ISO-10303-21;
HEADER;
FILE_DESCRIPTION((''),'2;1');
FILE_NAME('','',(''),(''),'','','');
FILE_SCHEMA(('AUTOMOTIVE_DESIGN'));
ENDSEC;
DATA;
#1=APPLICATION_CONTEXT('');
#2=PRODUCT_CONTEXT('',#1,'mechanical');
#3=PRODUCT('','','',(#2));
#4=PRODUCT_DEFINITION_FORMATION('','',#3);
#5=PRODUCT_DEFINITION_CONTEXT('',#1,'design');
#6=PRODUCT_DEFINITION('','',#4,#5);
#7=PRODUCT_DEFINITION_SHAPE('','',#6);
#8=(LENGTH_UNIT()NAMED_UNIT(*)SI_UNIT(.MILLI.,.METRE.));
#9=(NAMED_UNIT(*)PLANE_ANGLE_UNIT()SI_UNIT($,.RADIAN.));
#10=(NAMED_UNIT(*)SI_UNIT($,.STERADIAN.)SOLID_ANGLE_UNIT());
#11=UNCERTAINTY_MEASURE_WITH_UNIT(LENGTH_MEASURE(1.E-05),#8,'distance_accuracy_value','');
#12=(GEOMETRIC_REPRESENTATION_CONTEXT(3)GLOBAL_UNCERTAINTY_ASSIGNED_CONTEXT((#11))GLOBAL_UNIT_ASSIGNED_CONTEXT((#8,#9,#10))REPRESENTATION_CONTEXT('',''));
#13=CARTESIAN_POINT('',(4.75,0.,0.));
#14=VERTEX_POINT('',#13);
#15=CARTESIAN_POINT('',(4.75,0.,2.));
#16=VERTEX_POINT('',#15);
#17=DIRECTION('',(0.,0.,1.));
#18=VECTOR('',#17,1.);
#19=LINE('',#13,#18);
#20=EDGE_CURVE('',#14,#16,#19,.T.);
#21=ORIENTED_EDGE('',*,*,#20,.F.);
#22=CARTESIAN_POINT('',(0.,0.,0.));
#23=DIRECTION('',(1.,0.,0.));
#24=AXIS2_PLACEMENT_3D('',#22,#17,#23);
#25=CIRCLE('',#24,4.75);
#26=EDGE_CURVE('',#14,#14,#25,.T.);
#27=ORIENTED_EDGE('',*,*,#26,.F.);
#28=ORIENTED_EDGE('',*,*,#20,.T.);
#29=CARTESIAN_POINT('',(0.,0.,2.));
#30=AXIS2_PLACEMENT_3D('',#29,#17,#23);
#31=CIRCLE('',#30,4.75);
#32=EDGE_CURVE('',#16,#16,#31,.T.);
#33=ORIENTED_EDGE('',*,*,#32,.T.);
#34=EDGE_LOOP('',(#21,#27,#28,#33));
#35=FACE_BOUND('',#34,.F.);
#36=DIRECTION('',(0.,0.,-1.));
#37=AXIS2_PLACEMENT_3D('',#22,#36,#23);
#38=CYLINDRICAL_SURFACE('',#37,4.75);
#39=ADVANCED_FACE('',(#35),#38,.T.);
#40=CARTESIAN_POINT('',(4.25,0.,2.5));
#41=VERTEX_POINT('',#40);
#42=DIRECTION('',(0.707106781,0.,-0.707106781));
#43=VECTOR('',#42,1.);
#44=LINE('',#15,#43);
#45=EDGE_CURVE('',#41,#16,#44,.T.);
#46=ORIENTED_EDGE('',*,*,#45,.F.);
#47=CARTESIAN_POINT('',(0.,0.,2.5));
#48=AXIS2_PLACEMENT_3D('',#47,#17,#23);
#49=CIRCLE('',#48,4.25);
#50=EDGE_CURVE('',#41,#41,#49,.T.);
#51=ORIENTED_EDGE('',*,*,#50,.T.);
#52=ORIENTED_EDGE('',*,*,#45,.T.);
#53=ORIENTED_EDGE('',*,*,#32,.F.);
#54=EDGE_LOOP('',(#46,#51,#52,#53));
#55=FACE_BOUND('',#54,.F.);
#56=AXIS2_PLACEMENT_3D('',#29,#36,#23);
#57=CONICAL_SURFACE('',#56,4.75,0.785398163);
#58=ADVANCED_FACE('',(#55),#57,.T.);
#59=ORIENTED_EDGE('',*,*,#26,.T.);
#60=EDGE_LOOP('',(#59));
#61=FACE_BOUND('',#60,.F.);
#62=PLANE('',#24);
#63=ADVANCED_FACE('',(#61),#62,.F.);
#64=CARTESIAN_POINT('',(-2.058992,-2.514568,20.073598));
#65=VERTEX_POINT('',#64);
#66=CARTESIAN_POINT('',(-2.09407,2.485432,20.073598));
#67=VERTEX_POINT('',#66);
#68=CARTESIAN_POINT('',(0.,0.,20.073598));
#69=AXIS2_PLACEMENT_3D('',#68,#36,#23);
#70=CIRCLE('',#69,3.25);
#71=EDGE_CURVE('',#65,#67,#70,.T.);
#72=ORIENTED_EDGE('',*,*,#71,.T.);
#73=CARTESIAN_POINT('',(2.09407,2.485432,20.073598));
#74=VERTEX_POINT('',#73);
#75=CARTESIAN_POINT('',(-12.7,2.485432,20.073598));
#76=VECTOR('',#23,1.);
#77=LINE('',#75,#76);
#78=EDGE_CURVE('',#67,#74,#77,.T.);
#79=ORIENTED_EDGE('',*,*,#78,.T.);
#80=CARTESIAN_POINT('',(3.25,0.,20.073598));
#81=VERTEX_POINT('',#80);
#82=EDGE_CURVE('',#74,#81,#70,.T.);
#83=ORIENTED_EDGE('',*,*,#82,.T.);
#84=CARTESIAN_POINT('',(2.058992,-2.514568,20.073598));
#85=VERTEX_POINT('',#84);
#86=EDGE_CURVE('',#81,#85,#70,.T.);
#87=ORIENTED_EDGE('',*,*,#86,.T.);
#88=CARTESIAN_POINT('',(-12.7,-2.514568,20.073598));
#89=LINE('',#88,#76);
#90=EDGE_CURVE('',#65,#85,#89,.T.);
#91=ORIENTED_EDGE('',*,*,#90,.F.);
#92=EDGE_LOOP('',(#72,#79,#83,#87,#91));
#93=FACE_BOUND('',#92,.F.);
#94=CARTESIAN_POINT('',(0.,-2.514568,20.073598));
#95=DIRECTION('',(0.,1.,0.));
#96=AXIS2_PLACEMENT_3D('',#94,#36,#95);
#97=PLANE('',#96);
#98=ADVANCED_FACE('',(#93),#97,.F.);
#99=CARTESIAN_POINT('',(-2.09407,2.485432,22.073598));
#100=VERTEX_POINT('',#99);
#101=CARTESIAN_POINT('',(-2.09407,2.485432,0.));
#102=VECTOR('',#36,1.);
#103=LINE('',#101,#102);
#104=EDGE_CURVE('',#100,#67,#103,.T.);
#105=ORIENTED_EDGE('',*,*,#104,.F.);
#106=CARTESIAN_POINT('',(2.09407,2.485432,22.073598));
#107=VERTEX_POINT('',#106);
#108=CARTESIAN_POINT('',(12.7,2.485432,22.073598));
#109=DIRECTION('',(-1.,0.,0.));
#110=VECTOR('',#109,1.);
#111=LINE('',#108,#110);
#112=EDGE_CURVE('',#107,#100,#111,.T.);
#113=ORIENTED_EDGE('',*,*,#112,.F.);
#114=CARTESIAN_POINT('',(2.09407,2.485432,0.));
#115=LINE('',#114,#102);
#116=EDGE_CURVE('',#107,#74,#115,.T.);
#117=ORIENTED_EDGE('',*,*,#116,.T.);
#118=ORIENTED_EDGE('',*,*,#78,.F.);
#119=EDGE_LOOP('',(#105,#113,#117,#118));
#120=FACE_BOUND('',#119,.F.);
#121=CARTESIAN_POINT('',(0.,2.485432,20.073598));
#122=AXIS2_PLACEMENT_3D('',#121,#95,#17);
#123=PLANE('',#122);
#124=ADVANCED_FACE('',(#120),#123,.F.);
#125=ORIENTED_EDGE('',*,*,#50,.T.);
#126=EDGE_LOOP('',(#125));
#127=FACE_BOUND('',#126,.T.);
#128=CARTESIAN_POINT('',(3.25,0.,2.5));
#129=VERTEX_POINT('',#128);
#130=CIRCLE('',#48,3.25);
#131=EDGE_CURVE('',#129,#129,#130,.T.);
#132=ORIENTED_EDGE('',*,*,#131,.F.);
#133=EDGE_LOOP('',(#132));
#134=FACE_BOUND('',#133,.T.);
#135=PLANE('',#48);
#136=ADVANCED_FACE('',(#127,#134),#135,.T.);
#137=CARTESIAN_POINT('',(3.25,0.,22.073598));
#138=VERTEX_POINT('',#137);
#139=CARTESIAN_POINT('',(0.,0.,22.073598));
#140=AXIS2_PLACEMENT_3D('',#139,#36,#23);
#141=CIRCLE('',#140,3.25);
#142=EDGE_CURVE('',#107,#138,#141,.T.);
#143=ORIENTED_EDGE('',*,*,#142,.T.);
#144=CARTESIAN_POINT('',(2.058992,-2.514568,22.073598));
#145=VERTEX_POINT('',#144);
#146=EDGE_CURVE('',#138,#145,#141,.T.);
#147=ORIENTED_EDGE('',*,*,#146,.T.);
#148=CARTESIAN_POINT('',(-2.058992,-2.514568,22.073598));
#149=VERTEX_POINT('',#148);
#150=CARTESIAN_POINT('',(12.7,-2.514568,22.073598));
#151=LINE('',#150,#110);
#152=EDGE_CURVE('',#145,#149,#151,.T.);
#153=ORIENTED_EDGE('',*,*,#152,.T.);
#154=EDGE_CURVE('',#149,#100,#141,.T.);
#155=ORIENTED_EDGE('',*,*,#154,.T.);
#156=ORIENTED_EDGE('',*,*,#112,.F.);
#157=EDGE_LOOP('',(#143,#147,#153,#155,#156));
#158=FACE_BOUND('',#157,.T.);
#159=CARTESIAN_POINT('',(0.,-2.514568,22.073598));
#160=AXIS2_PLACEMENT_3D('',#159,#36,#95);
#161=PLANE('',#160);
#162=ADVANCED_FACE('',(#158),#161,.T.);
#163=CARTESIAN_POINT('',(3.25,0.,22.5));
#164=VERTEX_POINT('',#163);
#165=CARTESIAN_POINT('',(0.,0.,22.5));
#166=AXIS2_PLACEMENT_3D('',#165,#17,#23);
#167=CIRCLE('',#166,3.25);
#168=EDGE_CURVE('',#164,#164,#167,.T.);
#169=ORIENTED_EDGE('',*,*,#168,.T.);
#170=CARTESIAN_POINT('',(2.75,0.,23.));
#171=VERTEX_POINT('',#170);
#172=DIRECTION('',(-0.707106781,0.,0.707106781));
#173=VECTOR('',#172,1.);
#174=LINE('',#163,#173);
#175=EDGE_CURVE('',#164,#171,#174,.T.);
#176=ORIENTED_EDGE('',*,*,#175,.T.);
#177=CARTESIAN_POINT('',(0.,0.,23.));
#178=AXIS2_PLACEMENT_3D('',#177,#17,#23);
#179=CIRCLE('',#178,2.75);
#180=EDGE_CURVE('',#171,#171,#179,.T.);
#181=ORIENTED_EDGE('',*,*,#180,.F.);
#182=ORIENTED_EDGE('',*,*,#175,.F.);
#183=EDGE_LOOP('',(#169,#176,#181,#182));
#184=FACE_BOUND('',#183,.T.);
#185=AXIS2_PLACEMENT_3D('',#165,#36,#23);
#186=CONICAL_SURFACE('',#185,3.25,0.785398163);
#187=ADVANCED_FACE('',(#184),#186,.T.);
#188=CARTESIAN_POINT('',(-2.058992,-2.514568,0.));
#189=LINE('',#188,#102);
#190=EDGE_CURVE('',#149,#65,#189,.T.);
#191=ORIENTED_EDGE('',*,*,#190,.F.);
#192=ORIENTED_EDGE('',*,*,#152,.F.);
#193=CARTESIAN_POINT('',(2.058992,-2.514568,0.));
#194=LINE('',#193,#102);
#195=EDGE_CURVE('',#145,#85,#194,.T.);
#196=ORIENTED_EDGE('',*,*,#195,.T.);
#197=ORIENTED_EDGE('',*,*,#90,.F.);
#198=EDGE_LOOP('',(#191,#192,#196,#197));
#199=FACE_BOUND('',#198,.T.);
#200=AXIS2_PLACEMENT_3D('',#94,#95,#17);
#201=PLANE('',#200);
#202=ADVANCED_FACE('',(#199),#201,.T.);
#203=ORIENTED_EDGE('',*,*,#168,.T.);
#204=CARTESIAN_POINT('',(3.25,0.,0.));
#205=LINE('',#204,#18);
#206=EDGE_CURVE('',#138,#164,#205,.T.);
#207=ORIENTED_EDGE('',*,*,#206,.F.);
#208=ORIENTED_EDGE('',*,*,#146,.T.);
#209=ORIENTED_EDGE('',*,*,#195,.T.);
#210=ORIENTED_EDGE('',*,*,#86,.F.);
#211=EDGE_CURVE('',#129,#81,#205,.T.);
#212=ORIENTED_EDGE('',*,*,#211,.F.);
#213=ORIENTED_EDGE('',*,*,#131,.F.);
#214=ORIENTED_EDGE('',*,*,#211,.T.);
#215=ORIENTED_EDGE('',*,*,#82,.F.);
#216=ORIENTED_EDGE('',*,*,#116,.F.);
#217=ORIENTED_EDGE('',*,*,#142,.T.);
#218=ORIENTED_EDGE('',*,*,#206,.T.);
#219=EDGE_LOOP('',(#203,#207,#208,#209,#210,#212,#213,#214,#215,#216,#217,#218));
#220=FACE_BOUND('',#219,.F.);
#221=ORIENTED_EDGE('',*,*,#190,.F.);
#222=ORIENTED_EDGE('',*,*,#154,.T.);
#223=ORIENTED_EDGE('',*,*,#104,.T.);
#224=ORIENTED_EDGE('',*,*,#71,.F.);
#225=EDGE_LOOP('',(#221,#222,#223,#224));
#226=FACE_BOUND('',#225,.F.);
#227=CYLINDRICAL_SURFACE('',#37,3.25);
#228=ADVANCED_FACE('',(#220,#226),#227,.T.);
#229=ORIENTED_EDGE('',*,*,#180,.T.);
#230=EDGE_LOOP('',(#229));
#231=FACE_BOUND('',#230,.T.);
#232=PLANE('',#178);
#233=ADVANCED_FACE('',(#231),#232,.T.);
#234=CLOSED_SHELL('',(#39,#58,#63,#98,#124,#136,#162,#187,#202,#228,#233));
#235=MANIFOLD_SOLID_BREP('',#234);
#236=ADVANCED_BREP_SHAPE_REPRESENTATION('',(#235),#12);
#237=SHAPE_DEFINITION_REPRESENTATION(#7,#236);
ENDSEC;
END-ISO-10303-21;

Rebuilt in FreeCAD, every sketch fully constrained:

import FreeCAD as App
import Part
import Sketcher

V = App.Vector
Q = App.Units.Quantity


def edges_at(feature, points):
    """Names of the edges that pass closest to the given points."""
    edges = feature.Shape.Edges
    near = lambda p: min(range(len(edges)), key=lambda i: edges[i].distToShape(Part.Vertex(*p))[0])
    return sorted({f"Edge{near(p) + 1}" for p in points})


def add_polygon(sketch, points):
    """Adds a closed chain of lines whose ends are joined by coincident constraints."""
    first, n = sketch.GeometryCount, len(points)
    for a, b in zip(points, points[1:] + points[:1]):
        sketch.addGeometry(Part.LineSegment(App.Vector(*a, 0), App.Vector(*b, 0)), False)
    for i in range(n):
        sketch.addConstraint(Sketcher.Constraint("Coincident", first + i, 2, first + (i + 1) % n, 1))

doc = App.newDocument("Part")
params = doc.addObject("Spreadsheet::Sheet", "Params")
for row, (alias, value) in enumerate([
    ("sketch1_diameter", "9.5 mm"),
    ("sketch1_diameter2", "6.5 mm"),
    ("pad1_length", "2.5 mm"),
    ("sketch2_diameter", "6.5 mm"),
    ("pad2_length", "23 mm"),
    ("sketch3_width", "5 mm"),
    ("sketch3_height", "2 mm"),
    ("pocket1_length", "25.4 mm"),
    ("chamfer_size", "0.5 mm"),
], start=1):
    params.set(f"A{row}", alias)
    params.set(f"B{row}", "=" + value)
    params.setAlias(f"B{row}", alias)

body = doc.addObject("PartDesign::Body", "Body")

# Sketch on XY plane
sketch1 = doc.addObject("Sketcher::SketchObject", "Sketch")
body.addObject(sketch1)
sketch1.AttachmentSupport = (doc.XY_Plane, [""])
sketch1.MapMode = "FlatFace"
sketch1.addGeometry([
    Part.Circle(V(0, 0, 0), V(0, 0, 1), 4.8),
    Part.Circle(V(0, 0, 0), V(0, 0, 1), 3.2),
], False)
sketch1.addConstraint([
    Sketcher.Constraint("Coincident", 0, 3, -1, 1),
    Sketcher.Constraint("Coincident", 1, 3, -1, 1),
    Sketcher.Constraint("Diameter", 0, Q("9.5 mm")),
    Sketcher.Constraint("Diameter", 1, Q("6.5 mm")),
])
sketch1.setExpression("Constraints[2]", "Params.sketch1_diameter")
sketch1.setExpression("Constraints[3]", "Params.sketch1_diameter2")
pad1 = doc.addObject("PartDesign::Pad", "Pad")
body.addObject(pad1)
pad1.Profile = sketch1
pad1.setExpression("Length", "Params.pad1_length")

# Sketch on XY plane
sketch2 = doc.addObject("Sketcher::SketchObject", "Sketch001")
body.addObject(sketch2)
sketch2.AttachmentSupport = (doc.XY_Plane, [""])
sketch2.MapMode = "FlatFace"
sketch2.addGeometry(Part.Circle(V(0, 0, 0), V(0, 0, 1), 3.2), False)
sketch2.addConstraint([
    Sketcher.Constraint("Coincident", 0, 3, -1, 1),
    Sketcher.Constraint("Diameter", 0, Q("6.5 mm")),
])
sketch2.setExpression("Constraints[1]", "Params.sketch2_diameter")
pad2 = doc.addObject("PartDesign::Pad", "Pad001")
body.addObject(pad2)
pad2.Profile = sketch2
pad2.setExpression("Length", "Params.pad2_length")

# Sketch on YZ plane
sketch3 = doc.addObject("Sketcher::SketchObject", "Sketch002")
body.addObject(sketch3)
sketch3.AttachmentSupport = (doc.YZ_Plane, [""])
sketch3.MapMode = "FlatFace"
add_polygon(sketch3, [(-2.5, 22.1), (-2.5, 20.1), (2.5, 20.1), (2.5, 22.1)])  # lines 0-3
sketch3.addConstraint([
    Sketcher.Constraint("Vertical", 0),
    Sketcher.Constraint("Horizontal", 1),
    Sketcher.Constraint("Vertical", 2),
    Sketcher.Constraint("Horizontal", 3),
    Sketcher.Constraint("DistanceX", 1, 1, 1, 2, Q("5 mm")),
    Sketcher.Constraint("DistanceY", 0, 2, 0, 1, Q("2 mm")),
    Sketcher.Constraint("DistanceY", -1, 1, 0, 2, Q("20.073598 mm")),
    Sketcher.Constraint("DistanceX", 0, 2, -1, 1, Q("2.514568 mm")),
])
sketch3.setExpression("Constraints[8]", "Params.sketch3_width")
sketch3.setExpression("Constraints[9]", "Params.sketch3_height")
pocket1 = doc.addObject("PartDesign::Pocket", "Pocket")
body.addObject(pocket1)
pocket1.Profile = sketch3
pocket1.setExpression("Length", "Params.pocket1_length")
pocket1.Midplane = True
doc.recompute()

chamfer = doc.addObject("PartDesign::Chamfer", "Chamfer")
body.addObject(chamfer)
chamfer.Base = (pocket1, edges_at(pocket1, [(-4.75, 0, 2.5), (-3.25, 0, 23)]))
chamfer.setExpression("Size", "Params.chamfer_size")

doc.recompute()
